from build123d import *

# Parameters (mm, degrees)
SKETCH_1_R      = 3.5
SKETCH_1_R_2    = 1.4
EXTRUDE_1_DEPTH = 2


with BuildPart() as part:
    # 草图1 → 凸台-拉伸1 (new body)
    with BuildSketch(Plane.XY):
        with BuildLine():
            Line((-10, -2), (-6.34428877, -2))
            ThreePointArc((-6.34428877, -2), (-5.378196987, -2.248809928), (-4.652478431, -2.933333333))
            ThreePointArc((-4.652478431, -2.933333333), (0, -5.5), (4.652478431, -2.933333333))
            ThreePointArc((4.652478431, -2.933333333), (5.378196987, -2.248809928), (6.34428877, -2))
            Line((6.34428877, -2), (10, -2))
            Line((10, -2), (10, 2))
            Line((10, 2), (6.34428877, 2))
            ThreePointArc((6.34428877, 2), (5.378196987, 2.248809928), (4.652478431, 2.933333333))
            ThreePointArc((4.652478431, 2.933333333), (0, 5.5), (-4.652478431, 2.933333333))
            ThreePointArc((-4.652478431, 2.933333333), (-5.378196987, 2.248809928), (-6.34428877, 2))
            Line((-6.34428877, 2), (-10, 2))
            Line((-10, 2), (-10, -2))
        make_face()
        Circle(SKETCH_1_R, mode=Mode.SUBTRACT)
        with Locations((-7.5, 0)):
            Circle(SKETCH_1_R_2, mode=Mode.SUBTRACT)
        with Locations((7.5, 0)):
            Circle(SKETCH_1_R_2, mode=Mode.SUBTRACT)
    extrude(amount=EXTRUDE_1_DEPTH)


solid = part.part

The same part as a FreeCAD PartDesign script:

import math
import FreeCAD as App
import Part
import Sketcher
from FreeCAD import Vector
Q = App.Units.Quantity

doc = App.newDocument("Part")
params = doc.addObject("Spreadsheet::Sheet", "Params")
for row, (alias, value) in enumerate([
    ("sketch1_diameter", "7 mm"),
    ("sketch1_radius", "2 mm"),
    ("sketch1_diameter2", "2.8 mm"),
    ("sketch1_radius2", "5.5 mm"),
    ("sketch1_height", "4 mm"),
    ("pad1_length", "2 mm"),
], start=1):
    params.set(f"A{row}", alias)
    params.set(f"B{row}", "=" + value)
    params.setAlias(f"B{row}", alias)

body = doc.addObject("PartDesign::Body", "Body")

sketch1 = doc.addObject("Sketcher::SketchObject", "Sketch")
body.addObject(sketch1)
sketch1.AttachmentSupport = (doc.XY_Plane, [""])
sketch1.MapMode = "FlatFace"
sketch1.addGeometry(Part.LineSegment(Vector(-10, -2, 0), Vector(-6.3, -2, 0)), False)
sketch1.addGeometry(Part.ArcOfCircle(Part.Circle(Vector(-6.3, -4, 0), Vector(0, 0, 1), 2), math.radians(32), math.radians(90)), False)
sketch1.addGeometry(Part.ArcOfCircle(Part.Circle(Vector(0, 0, 0), Vector(0, 0, 1), 5.5), math.radians(-148), math.radians(-32)), False)
sketch1.addGeometry(Part.ArcOfCircle(Part.Circle(Vector(6.3, -4, 0), Vector(0, 0, 1), 2), math.radians(90), math.radians(148)), False)
sketch1.addGeometry(Part.LineSegment(Vector(6.3, -2, 0), Vector(10, -2, 0)), False)
sketch1.addGeometry(Part.LineSegment(Vector(10, -2, 0), Vector(10, 2, 0)), False)
sketch1.addGeometry(Part.LineSegment(Vector(10, 2, 0), Vector(6.3, 2, 0)), False)
sketch1.addGeometry(Part.ArcOfCircle(Part.Circle(Vector(6.3, 4, 0), Vector(0, 0, 1), 2), math.radians(-148), math.radians(-90)), False)
sketch1.addGeometry(Part.ArcOfCircle(Part.Circle(Vector(0, 0, 0), Vector(0, 0, 1), 5.5), math.radians(32), math.radians(148)), False)
sketch1.addGeometry(Part.ArcOfCircle(Part.Circle(Vector(-6.3, 4, 0), Vector(0, 0, 1), 2), math.radians(-90), math.radians(-32)), False)
sketch1.addGeometry(Part.LineSegment(Vector(-6.3, 2, 0), Vector(-10, 2, 0)), False)
sketch1.addGeometry(Part.LineSegment(Vector(-10, 2, 0), Vector(-10, -2, 0)), False)
sketch1.addGeometry(Part.Circle(Vector(-7.5, 0, 0), Vector(0, 0, 1), 1.4), False)
sketch1.addGeometry(Part.Circle(Vector(0, 0, 0), Vector(0, 0, 1), 3.5), False)
sketch1.addGeometry(Part.Circle(Vector(7.5, 0, 0), Vector(0, 0, 1), 1.4), False)
sketch1.addConstraint(Sketcher.Constraint("Tangent", 0, 2, 1, 2))
sketch1.addConstraint(Sketcher.Constraint("Tangent", 1, 1, 2, 1))
sketch1.addConstraint(Sketcher.Constraint("Tangent", 2, 2, 3, 2))
sketch1.addConstraint(Sketcher.Constraint("Tangent", 3, 1, 4, 1))
sketch1.addConstraint(Sketcher.Constraint("Coincident", 4, 2, 5, 1))
sketch1.addConstraint(Sketcher.Constraint("Coincident", 5, 2, 6, 1))
sketch1.addConstraint(Sketcher.Constraint("Tangent", 6, 2, 7, 2))
sketch1.addConstraint(Sketcher.Constraint("Tangent", 7, 1, 8, 1))
sketch1.addConstraint(Sketcher.Constraint("Tangent", 8, 2, 9, 2))
sketch1.addConstraint(Sketcher.Constraint("Tangent", 9, 1, 10, 1))
sketch1.addConstraint(Sketcher.Constraint("Coincident", 10, 2, 11, 1))
sketch1.addConstraint(Sketcher.Constraint("Coincident", 11, 2, 0, 1))
sketch1.addConstraint(Sketcher.Constraint("Horizontal", 0))
sketch1.addConstraint(Sketcher.Constraint("Horizontal", 4))
sketch1.addConstraint(Sketcher.Constraint("Vertical", 5))
sketch1.addConstraint(Sketcher.Constraint("Horizontal", 6))
sketch1.addConstraint(Sketcher.Constraint("Horizontal", 10))
sketch1.addConstraint(Sketcher.Constraint("Vertical", 11))
sketch1.addConstraint(Sketcher.Constraint("Coincident", 2, 3, -1, 1))
sketch1.addConstraint(Sketcher.Constraint("Coincident", 8, 3, -1, 1))
sketch1.addConstraint(Sketcher.Constraint("Coincident", 13, 3, -1, 1))
sketch1.addConstraint(Sketcher.Constraint("Equal", 1, 3))
sketch1.addConstraint(Sketcher.Constraint("Equal", 3, 7))
sketch1.addConstraint(Sketcher.Constraint("Equal", 2, 8))
sketch1.addConstraint(Sketcher.Constraint("Equal", 7, 9))
sketch1.addConstraint(Sketcher.Constraint("Equal", 12, 14))
sketch1.addConstraint(Sketcher.Constraint("Symmetric", 12, 3, 14, 3, -1, 1))
sketch1.addConstraint(Sketcher.Constraint("Symmetric", 4, 2, 10, 2, -1, 1))
sketch1.addConstraint(Sketcher.Constraint("PointOnObject", 12, 3, -1))
sketch1.addConstraint(Sketcher.Constraint("Horizontal", 1, 3, 3, 3))
sketch1.addConstraint(Sketcher.Constraint("Horizontal", 7, 3, 9, 3))
sketch1.addConstraint(Sketcher.Constraint("Diameter", 13, Q("7 mm")))
sketch1.addConstraint(Sketcher.Constraint("Radius", 1, Q("2 mm")))
sketch1.addConstraint(Sketcher.Constraint("Diameter", 12, Q("2.8 mm")))
sketch1.addConstraint(Sketcher.Constraint("Radius", 2, Q("5.5 mm")))
sketch1.addConstraint(Sketcher.Constraint("DistanceY", 5, 1, 5, 2, Q("4 mm")))
sketch1.addConstraint(Sketcher.Constraint("DistanceX", -1, 1, 4, 2, Q("10 mm")))
sketch1.addConstraint(Sketcher.Constraint("DistanceX", 12, 3, -1, 1, Q("7.5 mm")))
sketch1.setExpression("Constraints[31]", "Params.sketch1_diameter")
sketch1.setExpression("Constraints[32]", "Params.sketch1_radius")
sketch1.setExpression("Constraints[33]", "Params.sketch1_diameter2")
sketch1.setExpression("Constraints[34]", "Params.sketch1_radius2")
sketch1.setExpression("Constraints[35]", "Params.sketch1_height")
pad1 = doc.addObject("PartDesign::Pad", "Pad")
body.addObject(pad1)
pad1.Profile = sketch1
pad1.setExpression("Length", "Params.pad1_length")

doc.recompute()
